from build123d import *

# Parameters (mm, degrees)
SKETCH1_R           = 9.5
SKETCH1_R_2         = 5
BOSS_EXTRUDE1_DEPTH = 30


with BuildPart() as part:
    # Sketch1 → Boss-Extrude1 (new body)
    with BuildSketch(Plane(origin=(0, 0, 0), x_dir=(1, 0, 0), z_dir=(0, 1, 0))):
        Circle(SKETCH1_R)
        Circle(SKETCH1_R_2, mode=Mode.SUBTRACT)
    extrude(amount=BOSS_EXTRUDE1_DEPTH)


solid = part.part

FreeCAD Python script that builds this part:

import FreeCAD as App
import Part
import Sketcher

V = App.Vector
Q = App.Units.Quantity

doc = App.newDocument("Part")
params = doc.addObject("Spreadsheet::Sheet", "Params")
for row, (alias, value) in enumerate([
    ("sketch1_diameter", "19 mm"),
    ("sketch1_diameter2", "10 mm"),
    ("pad1_length", "30 mm"),
], start=1):
    params.set(f"A{row}", alias)
    params.set(f"B{row}", "=" + value)
    params.setAlias(f"B{row}", alias)

body = doc.addObject("PartDesign::Body", "Body")

sketch1 = body.newObject("Sketcher::SketchObject", "Sketch")
sketch1.AttachmentSupport = (doc.getObject("XZ_Plane"), [""])
sketch1.MapMode = "FlatFace"
sketch1.addGeometry([
    Part.Circle(V(0, 0, 0), V(0, 0, 1), 9.5),
    Part.Circle(V(0, 0, 0), V(0, 0, 1), 5),
], False)
sketch1.addConstraint([
    Sketcher.Constraint("Coincident", 0, 3, -1, 1),
    Sketcher.Constraint("Coincident", 1, 3, -1, 1),
    Sketcher.Constraint("Diameter", 0, Q("19 mm")),
    Sketcher.Constraint("Diameter", 1, Q("10 mm")),
])
sketch1.setExpression("Constraints[2]", "Params.sketch1_diameter")
sketch1.setExpression("Constraints[3]", "Params.sketch1_diameter2")
pad1 = body.newObject("PartDesign::Pad", "Pad")
pad1.Profile = sketch1
pad1.setExpression("Length", "Params.pad1_length")
pad1.Reversed = True

doc.recompute()
